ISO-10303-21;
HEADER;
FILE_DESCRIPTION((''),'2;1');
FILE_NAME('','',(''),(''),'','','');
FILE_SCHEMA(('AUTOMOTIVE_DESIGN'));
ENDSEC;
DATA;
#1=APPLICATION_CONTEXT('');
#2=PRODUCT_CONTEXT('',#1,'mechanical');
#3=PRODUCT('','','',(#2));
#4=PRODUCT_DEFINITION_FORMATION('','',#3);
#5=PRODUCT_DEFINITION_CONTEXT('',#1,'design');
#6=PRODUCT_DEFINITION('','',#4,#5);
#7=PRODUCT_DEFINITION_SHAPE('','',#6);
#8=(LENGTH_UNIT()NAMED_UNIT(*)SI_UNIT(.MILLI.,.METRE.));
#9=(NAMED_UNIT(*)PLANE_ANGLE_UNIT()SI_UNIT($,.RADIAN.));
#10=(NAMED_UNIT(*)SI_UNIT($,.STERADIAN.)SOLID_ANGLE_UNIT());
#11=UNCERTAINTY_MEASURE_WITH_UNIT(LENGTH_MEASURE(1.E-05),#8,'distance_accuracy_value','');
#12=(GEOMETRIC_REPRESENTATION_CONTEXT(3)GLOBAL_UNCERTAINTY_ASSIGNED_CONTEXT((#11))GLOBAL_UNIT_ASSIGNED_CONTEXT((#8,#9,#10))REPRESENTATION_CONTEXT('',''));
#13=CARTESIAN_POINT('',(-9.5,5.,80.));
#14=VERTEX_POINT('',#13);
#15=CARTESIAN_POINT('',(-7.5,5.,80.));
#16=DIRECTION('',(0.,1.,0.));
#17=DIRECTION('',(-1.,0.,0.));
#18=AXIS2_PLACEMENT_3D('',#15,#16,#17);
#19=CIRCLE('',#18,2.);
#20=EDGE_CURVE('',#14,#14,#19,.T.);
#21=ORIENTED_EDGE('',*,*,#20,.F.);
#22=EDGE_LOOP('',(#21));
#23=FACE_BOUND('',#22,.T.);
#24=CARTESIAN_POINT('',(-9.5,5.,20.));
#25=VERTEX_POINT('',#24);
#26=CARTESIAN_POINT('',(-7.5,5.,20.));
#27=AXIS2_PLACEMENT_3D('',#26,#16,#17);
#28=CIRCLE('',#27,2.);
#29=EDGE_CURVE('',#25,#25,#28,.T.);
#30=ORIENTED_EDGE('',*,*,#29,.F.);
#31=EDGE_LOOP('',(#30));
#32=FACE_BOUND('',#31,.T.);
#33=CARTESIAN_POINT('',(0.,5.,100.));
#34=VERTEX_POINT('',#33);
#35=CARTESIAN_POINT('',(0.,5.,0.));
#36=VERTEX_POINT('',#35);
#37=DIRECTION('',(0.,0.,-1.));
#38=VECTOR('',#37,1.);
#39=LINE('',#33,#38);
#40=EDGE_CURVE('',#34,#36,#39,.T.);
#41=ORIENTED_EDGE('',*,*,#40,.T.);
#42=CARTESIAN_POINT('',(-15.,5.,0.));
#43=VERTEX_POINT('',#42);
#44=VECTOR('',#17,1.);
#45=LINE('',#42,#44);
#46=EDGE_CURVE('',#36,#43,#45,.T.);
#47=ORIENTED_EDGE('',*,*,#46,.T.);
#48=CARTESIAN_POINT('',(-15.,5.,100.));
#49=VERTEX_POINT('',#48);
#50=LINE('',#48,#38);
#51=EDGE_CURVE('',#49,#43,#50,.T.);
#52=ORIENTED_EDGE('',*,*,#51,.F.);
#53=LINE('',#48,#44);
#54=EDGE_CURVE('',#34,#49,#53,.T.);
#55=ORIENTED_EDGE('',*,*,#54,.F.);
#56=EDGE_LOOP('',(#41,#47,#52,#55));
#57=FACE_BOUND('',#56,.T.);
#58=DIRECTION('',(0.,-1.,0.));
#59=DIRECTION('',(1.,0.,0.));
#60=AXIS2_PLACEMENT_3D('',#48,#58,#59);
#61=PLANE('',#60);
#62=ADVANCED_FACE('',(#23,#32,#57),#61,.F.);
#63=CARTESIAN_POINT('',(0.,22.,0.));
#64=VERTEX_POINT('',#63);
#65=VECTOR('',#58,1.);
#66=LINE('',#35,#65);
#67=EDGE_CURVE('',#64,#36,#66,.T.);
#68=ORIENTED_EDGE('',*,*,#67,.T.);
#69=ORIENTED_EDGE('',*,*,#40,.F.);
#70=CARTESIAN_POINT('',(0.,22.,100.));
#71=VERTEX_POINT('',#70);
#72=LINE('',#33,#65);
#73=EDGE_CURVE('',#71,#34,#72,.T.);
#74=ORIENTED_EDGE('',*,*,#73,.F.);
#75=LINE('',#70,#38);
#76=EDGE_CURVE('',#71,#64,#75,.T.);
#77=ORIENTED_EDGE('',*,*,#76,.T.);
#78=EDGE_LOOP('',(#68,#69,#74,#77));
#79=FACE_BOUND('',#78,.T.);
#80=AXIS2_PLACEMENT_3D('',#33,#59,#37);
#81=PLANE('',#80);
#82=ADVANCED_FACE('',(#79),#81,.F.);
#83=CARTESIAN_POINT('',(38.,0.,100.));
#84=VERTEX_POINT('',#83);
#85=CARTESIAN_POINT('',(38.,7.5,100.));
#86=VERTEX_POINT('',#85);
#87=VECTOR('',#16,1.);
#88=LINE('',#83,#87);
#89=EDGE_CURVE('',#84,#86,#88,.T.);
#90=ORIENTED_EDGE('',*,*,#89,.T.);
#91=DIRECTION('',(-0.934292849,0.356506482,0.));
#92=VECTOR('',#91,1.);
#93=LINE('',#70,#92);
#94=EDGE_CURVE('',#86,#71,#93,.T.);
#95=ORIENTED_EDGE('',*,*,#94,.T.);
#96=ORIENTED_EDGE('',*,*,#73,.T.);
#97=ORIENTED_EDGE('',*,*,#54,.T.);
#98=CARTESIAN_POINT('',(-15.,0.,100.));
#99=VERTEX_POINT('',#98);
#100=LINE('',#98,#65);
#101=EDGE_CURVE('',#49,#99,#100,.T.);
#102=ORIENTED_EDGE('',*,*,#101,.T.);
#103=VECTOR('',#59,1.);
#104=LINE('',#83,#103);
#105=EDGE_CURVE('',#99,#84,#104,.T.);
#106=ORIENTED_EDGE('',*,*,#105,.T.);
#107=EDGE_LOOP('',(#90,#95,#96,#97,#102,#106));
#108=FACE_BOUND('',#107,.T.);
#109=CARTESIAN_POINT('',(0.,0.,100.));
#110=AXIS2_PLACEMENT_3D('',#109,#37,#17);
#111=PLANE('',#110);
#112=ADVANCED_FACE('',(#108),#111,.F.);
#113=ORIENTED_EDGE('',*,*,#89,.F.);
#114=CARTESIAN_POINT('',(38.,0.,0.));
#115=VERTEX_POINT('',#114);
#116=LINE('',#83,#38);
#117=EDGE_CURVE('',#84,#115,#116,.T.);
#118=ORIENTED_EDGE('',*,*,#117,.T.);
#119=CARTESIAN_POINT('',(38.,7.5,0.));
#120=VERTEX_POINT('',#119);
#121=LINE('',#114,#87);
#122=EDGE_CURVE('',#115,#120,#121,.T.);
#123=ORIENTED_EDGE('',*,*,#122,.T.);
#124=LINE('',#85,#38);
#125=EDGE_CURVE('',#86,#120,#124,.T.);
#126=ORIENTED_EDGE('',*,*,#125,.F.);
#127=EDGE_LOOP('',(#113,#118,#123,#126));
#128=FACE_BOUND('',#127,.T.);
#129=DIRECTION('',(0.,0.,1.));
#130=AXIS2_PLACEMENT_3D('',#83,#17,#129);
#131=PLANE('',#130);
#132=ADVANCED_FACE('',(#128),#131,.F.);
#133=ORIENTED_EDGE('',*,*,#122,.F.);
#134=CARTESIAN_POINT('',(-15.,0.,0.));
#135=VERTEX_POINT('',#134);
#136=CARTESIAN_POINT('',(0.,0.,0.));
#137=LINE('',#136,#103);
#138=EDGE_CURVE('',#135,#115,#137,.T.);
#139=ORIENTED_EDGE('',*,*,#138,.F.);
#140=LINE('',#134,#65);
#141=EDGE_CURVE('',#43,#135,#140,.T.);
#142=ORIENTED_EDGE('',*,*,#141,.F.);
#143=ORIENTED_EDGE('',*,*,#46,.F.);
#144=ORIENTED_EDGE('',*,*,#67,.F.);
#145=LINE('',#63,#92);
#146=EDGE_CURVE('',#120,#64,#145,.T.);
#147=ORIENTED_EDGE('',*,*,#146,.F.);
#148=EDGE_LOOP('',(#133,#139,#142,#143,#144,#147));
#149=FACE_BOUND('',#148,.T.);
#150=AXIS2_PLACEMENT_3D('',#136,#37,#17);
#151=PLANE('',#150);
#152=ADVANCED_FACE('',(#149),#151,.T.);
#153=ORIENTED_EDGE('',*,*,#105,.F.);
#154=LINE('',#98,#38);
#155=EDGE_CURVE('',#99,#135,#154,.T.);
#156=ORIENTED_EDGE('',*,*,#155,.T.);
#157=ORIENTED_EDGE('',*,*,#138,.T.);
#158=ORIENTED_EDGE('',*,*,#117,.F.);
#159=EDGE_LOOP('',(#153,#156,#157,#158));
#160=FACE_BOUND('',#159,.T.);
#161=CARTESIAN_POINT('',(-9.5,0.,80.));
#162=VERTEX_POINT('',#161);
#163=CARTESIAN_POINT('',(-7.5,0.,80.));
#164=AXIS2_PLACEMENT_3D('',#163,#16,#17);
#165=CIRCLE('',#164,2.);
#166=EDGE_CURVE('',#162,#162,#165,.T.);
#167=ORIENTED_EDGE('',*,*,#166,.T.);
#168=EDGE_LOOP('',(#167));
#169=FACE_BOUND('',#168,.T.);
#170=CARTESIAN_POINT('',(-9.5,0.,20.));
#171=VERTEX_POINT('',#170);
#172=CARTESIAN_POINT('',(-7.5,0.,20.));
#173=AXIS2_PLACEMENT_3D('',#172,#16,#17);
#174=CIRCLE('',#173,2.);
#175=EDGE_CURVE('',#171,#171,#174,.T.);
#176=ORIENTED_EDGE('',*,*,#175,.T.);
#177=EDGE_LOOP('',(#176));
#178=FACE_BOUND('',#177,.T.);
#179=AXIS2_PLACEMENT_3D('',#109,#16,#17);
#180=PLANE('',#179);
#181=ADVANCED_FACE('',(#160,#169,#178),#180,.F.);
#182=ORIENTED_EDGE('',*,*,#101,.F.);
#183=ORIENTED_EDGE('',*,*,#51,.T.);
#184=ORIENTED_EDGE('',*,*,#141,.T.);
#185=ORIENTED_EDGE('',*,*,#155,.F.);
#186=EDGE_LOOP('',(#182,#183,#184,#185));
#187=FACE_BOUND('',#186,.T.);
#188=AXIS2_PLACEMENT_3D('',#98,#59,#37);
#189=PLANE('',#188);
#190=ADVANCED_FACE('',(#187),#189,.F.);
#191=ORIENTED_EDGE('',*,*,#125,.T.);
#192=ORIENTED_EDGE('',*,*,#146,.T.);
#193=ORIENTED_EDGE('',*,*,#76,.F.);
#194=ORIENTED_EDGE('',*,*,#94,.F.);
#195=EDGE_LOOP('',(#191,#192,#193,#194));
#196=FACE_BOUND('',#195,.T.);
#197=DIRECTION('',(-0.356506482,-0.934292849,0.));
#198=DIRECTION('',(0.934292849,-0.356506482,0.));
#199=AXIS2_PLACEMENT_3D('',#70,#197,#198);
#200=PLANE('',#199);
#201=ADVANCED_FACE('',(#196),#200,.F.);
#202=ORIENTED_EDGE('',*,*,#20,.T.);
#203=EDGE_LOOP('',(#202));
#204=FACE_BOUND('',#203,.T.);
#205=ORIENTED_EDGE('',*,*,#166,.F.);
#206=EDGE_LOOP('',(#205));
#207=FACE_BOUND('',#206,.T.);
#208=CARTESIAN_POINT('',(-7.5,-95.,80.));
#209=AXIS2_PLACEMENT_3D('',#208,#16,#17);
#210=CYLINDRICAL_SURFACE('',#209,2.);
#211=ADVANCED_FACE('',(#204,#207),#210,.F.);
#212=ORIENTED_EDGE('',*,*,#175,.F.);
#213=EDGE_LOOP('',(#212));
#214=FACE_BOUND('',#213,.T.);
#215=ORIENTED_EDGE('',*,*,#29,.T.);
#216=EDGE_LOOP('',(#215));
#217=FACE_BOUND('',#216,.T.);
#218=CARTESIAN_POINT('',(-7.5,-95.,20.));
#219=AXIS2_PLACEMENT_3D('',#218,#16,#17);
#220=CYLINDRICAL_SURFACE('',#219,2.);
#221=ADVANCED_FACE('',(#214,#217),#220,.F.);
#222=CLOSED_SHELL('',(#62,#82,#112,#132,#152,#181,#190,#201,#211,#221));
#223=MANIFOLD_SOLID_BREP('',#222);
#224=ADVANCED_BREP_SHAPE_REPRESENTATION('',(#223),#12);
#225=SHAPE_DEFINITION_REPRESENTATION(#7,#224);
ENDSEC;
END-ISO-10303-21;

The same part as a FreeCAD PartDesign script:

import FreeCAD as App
import Part
import Sketcher

V = App.Vector
Q = App.Units.Quantity


def add_polygon(sketch, points):
    """Adds a closed chain of lines whose ends are joined by coincident constraints."""
    first, n = sketch.GeometryCount, len(points)
    for a, b in zip(points, points[1:] + points[:1]):
        sketch.addGeometry(Part.LineSegment(App.Vector(*a, 0), App.Vector(*b, 0)), False)
    for i in range(n):
        sketch.addConstraint(Sketcher.Constraint("Coincident", first + i, 2, first + (i + 1) % n, 1))

doc = App.newDocument("Part")
body = doc.addObject("PartDesign::Body", "Body")

# Sketch on XY plane
sketch1 = doc.addObject("Sketcher::SketchObject", "Sketch")
body.addObject(sketch1)
sketch1.AttachmentSupport = (doc.XY_Plane, [""])
sketch1.MapMode = "FlatFace"
add_polygon(sketch1, [(-15, 0), (38, 0), (38, 8), (0, 22), (0, 5), (-15, 5)])  # lines 0-5
sketch1.addConstraint(Sketcher.Constraint("Horizontal", 0))
sketch1.addConstraint(Sketcher.Constraint("Vertical", 1))
sketch1.addConstraint(Sketcher.Constraint("Vertical", 3))
sketch1.addConstraint(Sketcher.Constraint("Horizontal", 4))
sketch1.addConstraint(Sketcher.Constraint("Vertical", 5))
sketch1.addConstraint(Sketcher.Constraint("PointOnObject", 0, 2, -1))
sketch1.addConstraint(Sketcher.Constraint("PointOnObject", 2, 2, -2))
sketch1.addConstraint(Sketcher.Constraint("DistanceX", 0, 1, 0, 2, Q("53 mm")))
sketch1.addConstraint(Sketcher.Constraint("DistanceX", 4, 2, 4, 1, Q("15 mm")))
sketch1.addConstraint(Sketcher.Constraint("DistanceY", 3, 2, 3, 1, Q("17 mm")))
sketch1.addConstraint(Sketcher.Constraint("DistanceY", 5, 2, 5, 1, Q("5 mm")))
sketch1.addConstraint(Sketcher.Constraint("DistanceY", 1, 1, 1, 2, Q("7.5 mm")))
pad1 = doc.addObject("PartDesign::Pad", "Pad")
body.addObject(pad1)
pad1.Profile = sketch1
pad1.Length = 100

# Sketch on XZ plane
sketch2 = doc.addObject("Sketcher::SketchObject", "Sketch001")
body.addObject(sketch2)
sketch2.AttachmentSupport = (doc.XZ_Plane, [""])
sketch2.MapMode = "FlatFace"
sketch2.AttachmentOffset = App.Placement(V(0, 0, -5), App.Rotation())
sketch2.addGeometry(Part.Circle(V(-7.5, 80, 0), V(0, 0, 1), 2), False)
sketch2.addGeometry(Part.Circle(V(-7.5, 20, 0), V(0, 0, 1), 2), False)
sketch2.addConstraint(Sketcher.Constraint("Equal", 0, 1))
sketch2.addConstraint(Sketcher.Constraint("Vertical", 0, 3, 1, 3))
sketch2.addConstraint(Sketcher.Constraint("Diameter", 0, Q("4 mm")))
sketch2.addConstraint(Sketcher.Constraint("DistanceY", -1, 1, 0, 3, Q("80 mm")))
sketch2.addConstraint(Sketcher.Constraint("DistanceY", -1, 1, 1, 3, Q("20 mm")))
sketch2.addConstraint(Sketcher.Constraint("DistanceX", 0, 3, -1, 1, Q("7.5 mm")))
pocket1 = doc.addObject("PartDesign::Pocket", "Pocket")
body.addObject(pocket1)
pocket1.Profile = sketch2
pocket1.Length = 100
pocket1.Reversed = True

doc.recompute()
